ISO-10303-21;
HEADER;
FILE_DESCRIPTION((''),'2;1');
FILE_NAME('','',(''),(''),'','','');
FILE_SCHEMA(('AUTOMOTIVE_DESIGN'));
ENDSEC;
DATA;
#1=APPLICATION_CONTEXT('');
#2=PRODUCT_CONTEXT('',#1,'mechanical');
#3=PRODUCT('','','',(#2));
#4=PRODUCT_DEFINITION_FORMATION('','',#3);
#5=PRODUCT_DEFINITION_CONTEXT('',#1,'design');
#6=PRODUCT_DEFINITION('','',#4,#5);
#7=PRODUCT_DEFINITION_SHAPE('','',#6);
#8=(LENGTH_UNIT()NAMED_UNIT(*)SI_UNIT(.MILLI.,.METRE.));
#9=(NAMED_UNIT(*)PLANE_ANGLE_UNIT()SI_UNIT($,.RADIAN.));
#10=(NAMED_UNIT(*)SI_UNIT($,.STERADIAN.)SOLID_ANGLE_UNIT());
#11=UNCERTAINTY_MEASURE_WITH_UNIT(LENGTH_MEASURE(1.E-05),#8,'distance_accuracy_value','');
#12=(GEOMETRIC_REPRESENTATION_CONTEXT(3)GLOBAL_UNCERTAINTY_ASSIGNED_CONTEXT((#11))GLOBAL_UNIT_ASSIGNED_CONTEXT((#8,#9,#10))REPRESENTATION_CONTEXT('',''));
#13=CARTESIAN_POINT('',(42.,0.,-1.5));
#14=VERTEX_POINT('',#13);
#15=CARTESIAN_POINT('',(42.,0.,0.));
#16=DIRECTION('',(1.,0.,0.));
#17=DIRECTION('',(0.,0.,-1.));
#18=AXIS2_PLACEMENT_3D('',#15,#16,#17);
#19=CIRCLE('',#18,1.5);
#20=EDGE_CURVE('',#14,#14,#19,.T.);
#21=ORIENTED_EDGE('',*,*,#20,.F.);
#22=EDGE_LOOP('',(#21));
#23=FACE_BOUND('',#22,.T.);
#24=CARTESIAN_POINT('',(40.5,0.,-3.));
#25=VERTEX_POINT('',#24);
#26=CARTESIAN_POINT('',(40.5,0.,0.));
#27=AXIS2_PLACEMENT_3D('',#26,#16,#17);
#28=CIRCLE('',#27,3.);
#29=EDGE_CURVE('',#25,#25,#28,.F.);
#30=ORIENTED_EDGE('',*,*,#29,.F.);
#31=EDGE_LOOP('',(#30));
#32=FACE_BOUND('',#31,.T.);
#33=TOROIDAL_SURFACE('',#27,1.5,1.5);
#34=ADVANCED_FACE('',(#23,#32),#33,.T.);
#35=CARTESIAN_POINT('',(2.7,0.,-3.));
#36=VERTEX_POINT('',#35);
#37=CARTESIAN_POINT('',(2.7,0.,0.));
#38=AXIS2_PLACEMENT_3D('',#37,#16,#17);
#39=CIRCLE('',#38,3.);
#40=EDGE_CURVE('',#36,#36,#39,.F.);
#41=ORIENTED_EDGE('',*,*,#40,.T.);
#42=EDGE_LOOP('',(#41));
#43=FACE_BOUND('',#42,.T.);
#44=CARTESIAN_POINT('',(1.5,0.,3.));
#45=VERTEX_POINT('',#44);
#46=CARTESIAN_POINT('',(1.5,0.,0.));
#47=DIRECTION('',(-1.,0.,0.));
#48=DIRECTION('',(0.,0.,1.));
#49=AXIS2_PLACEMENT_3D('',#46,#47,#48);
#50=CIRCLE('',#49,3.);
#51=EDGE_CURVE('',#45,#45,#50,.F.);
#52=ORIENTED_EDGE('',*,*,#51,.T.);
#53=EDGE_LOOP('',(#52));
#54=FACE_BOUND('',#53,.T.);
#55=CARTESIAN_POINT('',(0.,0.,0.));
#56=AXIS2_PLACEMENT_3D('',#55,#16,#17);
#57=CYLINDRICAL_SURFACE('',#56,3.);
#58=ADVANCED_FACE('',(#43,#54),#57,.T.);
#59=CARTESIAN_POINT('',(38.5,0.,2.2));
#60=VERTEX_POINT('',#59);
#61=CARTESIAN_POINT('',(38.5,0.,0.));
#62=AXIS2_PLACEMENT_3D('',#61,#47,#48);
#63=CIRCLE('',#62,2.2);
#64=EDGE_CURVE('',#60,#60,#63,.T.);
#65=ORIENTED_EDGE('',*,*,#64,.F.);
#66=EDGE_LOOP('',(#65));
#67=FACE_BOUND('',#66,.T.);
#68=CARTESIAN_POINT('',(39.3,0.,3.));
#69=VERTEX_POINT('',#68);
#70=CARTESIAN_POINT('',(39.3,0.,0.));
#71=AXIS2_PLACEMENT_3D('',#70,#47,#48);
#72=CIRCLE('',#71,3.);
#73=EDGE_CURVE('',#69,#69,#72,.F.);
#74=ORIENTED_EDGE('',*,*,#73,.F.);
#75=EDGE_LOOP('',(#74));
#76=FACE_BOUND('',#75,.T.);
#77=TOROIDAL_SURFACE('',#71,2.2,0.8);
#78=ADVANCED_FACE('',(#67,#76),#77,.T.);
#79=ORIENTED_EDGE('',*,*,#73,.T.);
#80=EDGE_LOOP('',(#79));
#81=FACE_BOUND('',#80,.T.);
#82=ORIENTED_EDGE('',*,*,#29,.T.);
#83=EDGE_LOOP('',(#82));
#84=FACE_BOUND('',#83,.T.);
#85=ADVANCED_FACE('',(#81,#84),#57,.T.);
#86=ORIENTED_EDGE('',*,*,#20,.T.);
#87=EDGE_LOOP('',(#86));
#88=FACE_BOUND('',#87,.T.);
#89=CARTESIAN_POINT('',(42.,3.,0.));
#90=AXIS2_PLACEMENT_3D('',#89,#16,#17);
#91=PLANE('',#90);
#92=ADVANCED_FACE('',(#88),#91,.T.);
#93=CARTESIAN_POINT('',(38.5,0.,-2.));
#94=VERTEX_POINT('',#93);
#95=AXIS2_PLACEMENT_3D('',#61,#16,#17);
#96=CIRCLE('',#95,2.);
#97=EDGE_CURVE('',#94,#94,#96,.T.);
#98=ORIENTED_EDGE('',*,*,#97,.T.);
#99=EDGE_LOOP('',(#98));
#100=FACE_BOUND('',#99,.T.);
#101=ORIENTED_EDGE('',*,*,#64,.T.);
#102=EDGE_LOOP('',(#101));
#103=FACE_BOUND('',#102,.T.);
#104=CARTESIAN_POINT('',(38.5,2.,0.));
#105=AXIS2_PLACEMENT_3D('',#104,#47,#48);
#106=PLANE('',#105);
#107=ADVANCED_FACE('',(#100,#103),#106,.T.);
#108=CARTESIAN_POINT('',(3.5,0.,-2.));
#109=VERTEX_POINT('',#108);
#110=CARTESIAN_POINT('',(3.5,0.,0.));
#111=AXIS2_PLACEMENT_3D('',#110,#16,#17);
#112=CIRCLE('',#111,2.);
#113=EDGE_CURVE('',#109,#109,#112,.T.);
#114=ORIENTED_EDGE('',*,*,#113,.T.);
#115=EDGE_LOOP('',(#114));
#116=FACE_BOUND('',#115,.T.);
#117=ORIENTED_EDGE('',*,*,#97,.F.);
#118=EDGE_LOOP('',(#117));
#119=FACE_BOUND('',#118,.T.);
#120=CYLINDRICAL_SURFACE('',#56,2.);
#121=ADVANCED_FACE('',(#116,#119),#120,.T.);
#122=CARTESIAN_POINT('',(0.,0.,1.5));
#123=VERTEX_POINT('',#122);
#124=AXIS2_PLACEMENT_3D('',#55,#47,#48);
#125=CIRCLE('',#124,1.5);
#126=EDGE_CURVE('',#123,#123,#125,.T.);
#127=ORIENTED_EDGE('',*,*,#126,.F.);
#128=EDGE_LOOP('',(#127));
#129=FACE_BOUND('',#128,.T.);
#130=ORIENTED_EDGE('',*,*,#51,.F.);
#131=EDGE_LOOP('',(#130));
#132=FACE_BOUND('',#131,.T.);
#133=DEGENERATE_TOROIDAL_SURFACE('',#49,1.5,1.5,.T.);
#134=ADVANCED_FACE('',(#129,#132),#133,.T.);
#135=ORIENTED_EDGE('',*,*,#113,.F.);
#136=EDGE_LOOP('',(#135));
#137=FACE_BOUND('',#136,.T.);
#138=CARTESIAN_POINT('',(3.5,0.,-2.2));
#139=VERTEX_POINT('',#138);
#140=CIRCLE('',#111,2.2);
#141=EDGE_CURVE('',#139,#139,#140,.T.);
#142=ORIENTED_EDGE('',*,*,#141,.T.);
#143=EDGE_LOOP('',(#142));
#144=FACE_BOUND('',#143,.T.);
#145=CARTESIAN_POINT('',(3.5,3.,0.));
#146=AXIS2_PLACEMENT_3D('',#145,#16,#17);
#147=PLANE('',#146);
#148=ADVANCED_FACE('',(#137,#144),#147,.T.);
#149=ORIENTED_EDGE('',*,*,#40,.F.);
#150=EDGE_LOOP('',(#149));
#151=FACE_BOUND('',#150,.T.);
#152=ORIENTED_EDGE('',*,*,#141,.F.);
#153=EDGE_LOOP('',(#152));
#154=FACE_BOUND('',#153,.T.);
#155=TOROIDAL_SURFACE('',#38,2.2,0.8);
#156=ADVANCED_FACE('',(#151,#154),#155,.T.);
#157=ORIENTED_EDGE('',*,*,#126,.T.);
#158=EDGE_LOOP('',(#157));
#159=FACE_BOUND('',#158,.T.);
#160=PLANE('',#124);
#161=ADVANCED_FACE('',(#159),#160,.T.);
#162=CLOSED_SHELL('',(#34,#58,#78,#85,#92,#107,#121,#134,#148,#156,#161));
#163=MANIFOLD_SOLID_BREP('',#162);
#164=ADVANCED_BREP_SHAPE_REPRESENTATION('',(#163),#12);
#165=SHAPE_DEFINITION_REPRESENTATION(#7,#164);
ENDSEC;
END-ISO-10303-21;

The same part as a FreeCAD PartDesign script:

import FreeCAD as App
import Part
import Sketcher
Q = App.Units.Quantity


def edges_at(feature, points):
    """Names of the edges that pass closest to the given points."""
    edges = feature.Shape.Edges
    near = lambda p: min(range(len(edges)), key=lambda i: edges[i].distToShape(Part.Vertex(*p))[0])
    return sorted({f"Edge{near(p) + 1}" for p in points})


def add_polygon(sketch, points):
    """Adds a closed chain of lines whose ends are joined by coincident constraints."""
    first, n = sketch.GeometryCount, len(points)
    for a, b in zip(points, points[1:] + points[:1]):
        sketch.addGeometry(Part.LineSegment(App.Vector(*a, 0), App.Vector(*b, 0)), False)
    for i in range(n):
        sketch.addConstraint(Sketcher.Constraint("Coincident", first + i, 2, first + (i + 1) % n, 1))

doc = App.newDocument("Part")
body = doc.addObject("PartDesign::Body", "Body")

sketch1 = body.newObject("Sketcher::SketchObject", "Sketch")
sketch1.AttachmentSupport = (doc.getObject("XY_Plane"), [""])
sketch1.MapMode = "FlatFace"
add_polygon(sketch1, [(0, 3), (0, 0), (42, 0), (42, 3), (38.5, 3), (38.5, 2), (3.5, 2), (3.5, 3)])
sketch1.addConstraint(Sketcher.Constraint("Vertical", 0))
sketch1.addConstraint(Sketcher.Constraint("Horizontal", 1))
sketch1.addConstraint(Sketcher.Constraint("Vertical", 2))
sketch1.addConstraint(Sketcher.Constraint("Horizontal", 3))
sketch1.addConstraint(Sketcher.Constraint("Vertical", 4))
sketch1.addConstraint(Sketcher.Constraint("Horizontal", 5))
sketch1.addConstraint(Sketcher.Constraint("Vertical", 6))
sketch1.addConstraint(Sketcher.Constraint("Horizontal", 7))
sketch1.addConstraint(Sketcher.Constraint("Coincident", 0, 2, -1, 1))
sketch1.addConstraint(Sketcher.Constraint("Horizontal", 3, 2, 6, 2))
sketch1.addConstraint(Sketcher.Constraint("Equal", 3, 7))
sketch1.addConstraint(Sketcher.Constraint("DistanceX", 1, 1, 1, 2, Q("42 mm")))
sketch1.addConstraint(Sketcher.Constraint("DistanceX", 5, 2, 5, 1, Q("35 mm")))
sketch1.addConstraint(Sketcher.Constraint("DistanceY", 0, 2, 0, 1, Q("3 mm")))
sketch1.addConstraint(Sketcher.Constraint("DistanceY", 4, 2, 4, 1, Q("1 mm")))
revolution = body.newObject("PartDesign::Revolution", "Revolution")
revolution.Profile = sketch1
revolution.ReferenceAxis = (sketch1, ["H_Axis"])
revolution.Angle = 360
doc.recompute()

fillet = body.newObject("PartDesign::Fillet", "Fillet")
fillet.Base = (revolution, edges_at(revolution, [(38.5, 0, 3), (3.5, 0, 3)]))
fillet.Radius = 0.8
doc.recompute()

fillet2 = body.newObject("PartDesign::Fillet", "Fillet001")
fillet2.Base = (fillet, edges_at(fillet, [(42, 0, 3), (0, 0, 3)]))
fillet2.Radius = 1.5

doc.recompute()
